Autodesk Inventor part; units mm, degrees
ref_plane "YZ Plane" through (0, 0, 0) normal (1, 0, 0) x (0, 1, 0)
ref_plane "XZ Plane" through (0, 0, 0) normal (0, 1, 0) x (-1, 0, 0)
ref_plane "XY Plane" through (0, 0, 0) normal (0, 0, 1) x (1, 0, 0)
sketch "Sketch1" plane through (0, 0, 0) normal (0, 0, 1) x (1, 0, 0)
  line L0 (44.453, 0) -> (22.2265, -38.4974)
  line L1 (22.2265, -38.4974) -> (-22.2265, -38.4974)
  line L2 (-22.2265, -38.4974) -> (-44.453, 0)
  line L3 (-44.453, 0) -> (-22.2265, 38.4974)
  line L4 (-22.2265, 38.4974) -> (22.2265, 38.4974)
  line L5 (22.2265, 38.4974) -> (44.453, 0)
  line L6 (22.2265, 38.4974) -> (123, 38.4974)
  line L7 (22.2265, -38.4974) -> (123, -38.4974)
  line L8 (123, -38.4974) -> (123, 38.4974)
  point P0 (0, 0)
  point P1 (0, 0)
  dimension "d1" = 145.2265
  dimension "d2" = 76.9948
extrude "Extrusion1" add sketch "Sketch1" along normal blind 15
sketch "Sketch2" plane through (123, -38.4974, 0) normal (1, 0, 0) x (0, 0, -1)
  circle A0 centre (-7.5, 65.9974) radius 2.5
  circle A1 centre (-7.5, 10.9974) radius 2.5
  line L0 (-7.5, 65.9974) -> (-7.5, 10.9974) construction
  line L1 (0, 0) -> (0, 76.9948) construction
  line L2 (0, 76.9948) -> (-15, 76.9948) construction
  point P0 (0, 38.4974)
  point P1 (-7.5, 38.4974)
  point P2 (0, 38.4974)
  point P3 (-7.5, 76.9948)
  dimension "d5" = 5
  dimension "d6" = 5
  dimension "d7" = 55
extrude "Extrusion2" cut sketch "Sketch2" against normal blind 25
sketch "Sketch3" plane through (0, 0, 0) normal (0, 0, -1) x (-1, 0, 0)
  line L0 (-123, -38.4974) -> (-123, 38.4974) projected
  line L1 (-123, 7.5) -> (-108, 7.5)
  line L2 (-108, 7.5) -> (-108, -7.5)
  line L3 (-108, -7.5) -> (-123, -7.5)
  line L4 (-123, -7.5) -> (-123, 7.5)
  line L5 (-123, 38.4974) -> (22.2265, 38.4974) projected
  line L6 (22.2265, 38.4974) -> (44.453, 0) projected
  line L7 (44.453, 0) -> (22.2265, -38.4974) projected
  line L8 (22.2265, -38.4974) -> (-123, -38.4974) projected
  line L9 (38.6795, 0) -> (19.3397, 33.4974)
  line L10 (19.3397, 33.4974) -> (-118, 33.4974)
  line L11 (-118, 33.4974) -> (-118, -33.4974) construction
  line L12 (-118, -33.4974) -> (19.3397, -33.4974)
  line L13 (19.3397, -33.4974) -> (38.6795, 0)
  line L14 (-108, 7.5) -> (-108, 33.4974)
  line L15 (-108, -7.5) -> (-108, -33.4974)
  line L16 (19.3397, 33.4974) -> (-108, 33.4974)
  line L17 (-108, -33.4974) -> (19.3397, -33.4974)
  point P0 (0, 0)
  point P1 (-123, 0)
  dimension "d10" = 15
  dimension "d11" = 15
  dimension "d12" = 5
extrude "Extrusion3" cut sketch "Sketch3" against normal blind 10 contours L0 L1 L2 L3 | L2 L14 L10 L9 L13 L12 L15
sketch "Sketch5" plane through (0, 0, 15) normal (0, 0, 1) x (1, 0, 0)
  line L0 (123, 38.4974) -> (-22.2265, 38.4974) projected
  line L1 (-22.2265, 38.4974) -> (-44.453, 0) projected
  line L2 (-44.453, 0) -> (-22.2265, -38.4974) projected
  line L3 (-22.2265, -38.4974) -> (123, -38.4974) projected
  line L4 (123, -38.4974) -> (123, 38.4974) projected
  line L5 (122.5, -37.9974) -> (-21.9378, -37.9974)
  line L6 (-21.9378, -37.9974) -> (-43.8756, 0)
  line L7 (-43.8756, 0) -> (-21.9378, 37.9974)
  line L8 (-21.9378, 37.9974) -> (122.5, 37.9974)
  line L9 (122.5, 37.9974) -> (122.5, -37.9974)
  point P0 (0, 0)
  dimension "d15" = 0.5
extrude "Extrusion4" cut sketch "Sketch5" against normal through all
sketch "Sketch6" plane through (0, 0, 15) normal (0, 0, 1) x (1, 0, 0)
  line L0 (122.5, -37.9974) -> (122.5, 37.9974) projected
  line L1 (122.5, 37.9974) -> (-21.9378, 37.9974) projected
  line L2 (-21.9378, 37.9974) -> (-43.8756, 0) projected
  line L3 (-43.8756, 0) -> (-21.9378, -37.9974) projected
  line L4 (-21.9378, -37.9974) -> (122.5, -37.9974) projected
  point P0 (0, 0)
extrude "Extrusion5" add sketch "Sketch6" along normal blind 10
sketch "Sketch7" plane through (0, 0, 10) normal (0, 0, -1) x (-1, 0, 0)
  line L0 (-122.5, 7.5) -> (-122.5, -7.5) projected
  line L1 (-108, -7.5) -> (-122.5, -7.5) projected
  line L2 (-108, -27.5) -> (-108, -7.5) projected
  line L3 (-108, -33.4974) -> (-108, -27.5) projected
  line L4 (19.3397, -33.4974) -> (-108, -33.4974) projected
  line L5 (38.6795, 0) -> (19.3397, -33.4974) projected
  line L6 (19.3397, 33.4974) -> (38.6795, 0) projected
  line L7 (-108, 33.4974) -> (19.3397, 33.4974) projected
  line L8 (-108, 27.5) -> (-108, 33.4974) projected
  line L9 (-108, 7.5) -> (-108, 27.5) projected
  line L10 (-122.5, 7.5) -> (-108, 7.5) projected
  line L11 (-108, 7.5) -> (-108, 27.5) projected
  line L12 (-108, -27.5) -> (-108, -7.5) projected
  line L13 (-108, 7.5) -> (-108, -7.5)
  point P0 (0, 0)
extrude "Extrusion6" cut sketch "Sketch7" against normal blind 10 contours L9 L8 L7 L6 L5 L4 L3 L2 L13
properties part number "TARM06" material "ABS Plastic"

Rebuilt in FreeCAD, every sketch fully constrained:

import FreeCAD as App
import Part
import Sketcher
Q = App.Units.Quantity

doc = App.newDocument("Part")
body = doc.addObject("PartDesign::Body", "Body")

sketch1 = body.newObject("Sketcher::SketchObject", "Sketch")
sketch1.AttachmentSupport = (doc.getObject("XY_Plane"), [""])
sketch1.MapMode = "FlatFace"
sketch1.addGeometry(Part.LineSegment(App.Vector(123, 38, 0), App.Vector(-22, 38, 0)), False)
sketch1.addGeometry(Part.LineSegment(App.Vector(-22, 38, 0), App.Vector(-44, 0, 0)), False)
sketch1.addGeometry(Part.LineSegment(App.Vector(-44, 0, 0), App.Vector(-22, -38, 0)), False)
sketch1.addGeometry(Part.LineSegment(App.Vector(-22, -38, 0), App.Vector(123, -38, 0)), False)
sketch1.addGeometry(Part.LineSegment(App.Vector(123, -38, 0), App.Vector(123, 38, 0)), False)
sketch1.addConstraint(Sketcher.Constraint("Coincident", 0, 2, 1, 1))
sketch1.addConstraint(Sketcher.Constraint("Coincident", 1, 2, 2, 1))
sketch1.addConstraint(Sketcher.Constraint("Coincident", 2, 2, 3, 1))
sketch1.addConstraint(Sketcher.Constraint("Coincident", 3, 2, 4, 1))
sketch1.addConstraint(Sketcher.Constraint("Coincident", 4, 2, 0, 1))
sketch1.addConstraint(Sketcher.Constraint("Horizontal", 0))
sketch1.addConstraint(Sketcher.Constraint("Horizontal", 3))
sketch1.addConstraint(Sketcher.Constraint("Vertical", 4))
sketch1.addConstraint(Sketcher.Constraint("Symmetric", 0, 2, 2, 2, -1))
sketch1.addConstraint(Sketcher.Constraint("PointOnObject", 1, 2, -1))
sketch1.addConstraint(Sketcher.Constraint("Angle", 1, Q("-120 deg")))
sketch1.addConstraint(Sketcher.Constraint("DistanceX", 0, 2, 0, 1, 145.2265))
sketch1.addConstraint(Sketcher.Constraint("DistanceY", 4, 1, 4, 2, 76.9948))
sketch1.addConstraint(Sketcher.Constraint("DistanceX", -1, 1, 3, 2, 123.0))
pad1 = body.newObject("PartDesign::Pad", "Pad")
pad1.Profile = sketch1
pad1.Length = 15

sketch2 = body.newObject("Sketcher::SketchObject", "Sketch001")
sketch2.AttachmentSupport = (doc.getObject("YZ_Plane"), [""])
sketch2.MapMode = "FlatFace"
sketch2.AttachmentOffset = App.Placement(App.Vector(0, 0, 123), App.Rotation())
sketch2.addGeometry(Part.Circle(App.Vector(27.5, 7.5, 0), App.Vector(0, 0, 1), 2.5), False)
sketch2.addGeometry(Part.Circle(App.Vector(-27.5, 7.5, 0), App.Vector(0, 0, 1), 2.5), False)
sketch2.addConstraint(Sketcher.Constraint("Equal", 0, 1))
sketch2.addConstraint(Sketcher.Constraint("Symmetric", 0, 3, 1, 3, -2))
sketch2.addConstraint(Sketcher.Constraint("Diameter", 0, 5.0))
sketch2.addConstraint(Sketcher.Constraint("DistanceX", 1, 3, 0, 3, 55.0))
sketch2.addConstraint(Sketcher.Constraint("DistanceY", -1, 1, 0, 3, 7.5))
pocket1 = body.newObject("PartDesign::Pocket", "Pocket")
pocket1.Profile = sketch2
pocket1.Length = 25

sketch3 = body.newObject("Sketcher::SketchObject", "Sketch002")
sketch3.AttachmentSupport = (doc.getObject("XY_Plane"), [""])
sketch3.MapMode = "FlatFace"
sketch3.addGeometry(Part.LineSegment(App.Vector(123, 8, 0), App.Vector(123, -8, 0)), False)
sketch3.addGeometry(Part.LineSegment(App.Vector(123, -8, 0), App.Vector(108, -8, 0)), False)
sketch3.addGeometry(Part.LineSegment(App.Vector(108, -8, 0), App.Vector(108, -33, 0)), False)
sketch3.addGeometry(Part.LineSegment(App.Vector(108, -33, 0), App.Vector(-19, -33, 0)), False)
sketch3.addGeometry(Part.LineSegment(App.Vector(-19, -33, 0), App.Vector(-39, 0, 0)), False)
sketch3.addGeometry(Part.LineSegment(App.Vector(-39, 0, 0), App.Vector(-19, 33, 0)), False)
sketch3.addGeometry(Part.LineSegment(App.Vector(-19, 33, 0), App.Vector(108, 33, 0)), False)
sketch3.addGeometry(Part.LineSegment(App.Vector(108, 33, 0), App.Vector(108, 8, 0)), False)
sketch3.addGeometry(Part.LineSegment(App.Vector(108, 8, 0), App.Vector(123, 8, 0)), False)
sketch3.addConstraint(Sketcher.Constraint("Coincident", 0, 2, 1, 1))
sketch3.addConstraint(Sketcher.Constraint("Coincident", 1, 2, 2, 1))
sketch3.addConstraint(Sketcher.Constraint("Coincident", 2, 2, 3, 1))
sketch3.addConstraint(Sketcher.Constraint("Coincident", 3, 2, 4, 1))
sketch3.addConstraint(Sketcher.Constraint("Coincident", 4, 2, 5, 1))
sketch3.addConstraint(Sketcher.Constraint("Coincident", 5, 2, 6, 1))
sketch3.addConstraint(Sketcher.Constraint("Coincident", 6, 2, 7, 1))
sketch3.addConstraint(Sketcher.Constraint("Coincident", 7, 2, 8, 1))
sketch3.addConstraint(Sketcher.Constraint("Coincident", 8, 2, 0, 1))
sketch3.addConstraint(Sketcher.Constraint("Vertical", 0))
sketch3.addConstraint(Sketcher.Constraint("Horizontal", 1))
sketch3.addConstraint(Sketcher.Constraint("Vertical", 2))
sketch3.addConstraint(Sketcher.Constraint("Horizontal", 3))
sketch3.addConstraint(Sketcher.Constraint("Horizontal", 6))
sketch3.addConstraint(Sketcher.Constraint("Vertical", 7))
sketch3.addConstraint(Sketcher.Constraint("Horizontal", 8))
sketch3.addConstraint(Sketcher.Constraint("Symmetric", 3, 2, 5, 2, -1))
sketch3.addConstraint(Sketcher.Constraint("Symmetric", 1, 2, 7, 2, -1))
sketch3.addConstraint(Sketcher.Constraint("PointOnObject", 4, 2, -1))
sketch3.addConstraint(Sketcher.Constraint("Equal", 8, 0))
sketch3.addConstraint(Sketcher.Constraint("DistanceX", 1, 2, 1, 1, 15.0))
sketch3.addConstraint(Sketcher.Constraint("Angle", 4, Q("120 deg")))
sketch3.addConstraint(Sketcher.Constraint("DistanceX", -1, 1, 0, 2, 123.0))
sketch3.addConstraint(Sketcher.Constraint("DistanceX", 3, 2, 3, 1, 127.3397))
sketch3.addConstraint(Sketcher.Constraint("DistanceY", 2, 2, 2, 1, 25.9974))
pocket2 = body.newObject("PartDesign::Pocket", "Pocket001")
pocket2.Profile = sketch3
pocket2.Length = 10
pocket2.Reversed = True

sketch4 = body.newObject("Sketcher::SketchObject", "Sketch003")
sketch4.AttachmentSupport = (doc.getObject("XY_Plane"), [""])
sketch4.MapMode = "FlatFace"
sketch4.AttachmentOffset = App.Placement(App.Vector(0, 0, 15), App.Rotation())
sketch4.addGeometry(Part.LineSegment(App.Vector(123, -38, 0), App.Vector(123, 38, 0)), False)
sketch4.addGeometry(Part.LineSegment(App.Vector(123, 38, 0), App.Vector(-22, 38, 0)), False)
sketch4.addGeometry(Part.LineSegment(App.Vector(-22, 38, 0), App.Vector(-44, 0, 0)), False)
sketch4.addGeometry(Part.LineSegment(App.Vector(-44, 0, 0), App.Vector(-22, -38, 0)), False)
sketch4.addGeometry(Part.LineSegment(App.Vector(-22, -38, 0), App.Vector(123, -38, 0)), False)
sketch4.addGeometry(Part.LineSegment(App.Vector(122, 38, 0), App.Vector(122, -38, 0)), False)
sketch4.addGeometry(Part.LineSegment(App.Vector(122, -38, 0), App.Vector(-22, -38, 0)), False)
sketch4.addGeometry(Part.LineSegment(App.Vector(-22, -38, 0), App.Vector(-44, 0, 0)), False)
sketch4.addGeometry(Part.LineSegment(App.Vector(-44, 0, 0), App.Vector(-22, 38, 0)), False)
sketch4.addGeometry(Part.LineSegment(App.Vector(-22, 38, 0), App.Vector(122, 38, 0)), False)
sketch4.addConstraint(Sketcher.Constraint("Coincident", 0, 2, 1, 1))
sketch4.addConstraint(Sketcher.Constraint("Coincident", 1, 2, 2, 1))
sketch4.addConstraint(Sketcher.Constraint("Coincident", 2, 2, 3, 1))
sketch4.addConstraint(Sketcher.Constraint("Coincident", 3, 2, 4, 1))
sketch4.addConstraint(Sketcher.Constraint("Coincident", 4, 2, 0, 1))
sketch4.addConstraint(Sketcher.Constraint("Coincident", 5, 2, 6, 1))
sketch4.addConstraint(Sketcher.Constraint("Coincident", 6, 2, 7, 1))
sketch4.addConstraint(Sketcher.Constraint("Coincident", 7, 2, 8, 1))
sketch4.addConstraint(Sketcher.Constraint("Coincident", 8, 2, 9, 1))
sketch4.addConstraint(Sketcher.Constraint("Coincident", 9, 2, 5, 1))
sketch4.addConstraint(Sketcher.Constraint("Vertical", 0))
sketch4.addConstraint(Sketcher.Constraint("Horizontal", 1))
sketch4.addConstraint(Sketcher.Constraint("Horizontal", 4))
sketch4.addConstraint(Sketcher.Constraint("Vertical", 5))
sketch4.addConstraint(Sketcher.Constraint("Horizontal", 6))
sketch4.addConstraint(Sketcher.Constraint("Horizontal", 9))
sketch4.addConstraint(Sketcher.Constraint("Symmetric", 1, 2, 3, 2, -1))
sketch4.addConstraint(Sketcher.Constraint("Symmetric", 6, 2, 8, 2, -1))
sketch4.addConstraint(Sketcher.Constraint("PointOnObject", 2, 2, -1))
sketch4.addConstraint(Sketcher.Constraint("PointOnObject", 7, 2, -1))
sketch4.addConstraint(Sketcher.Constraint("Parallel", 3, 7))
sketch4.addConstraint(Sketcher.Constraint("DistanceX", 5, 2, 4, 2, 0.5))
sketch4.addConstraint(Sketcher.Constraint("DistanceY", 4, 2, 5, 2, 0.5))
sketch4.addConstraint(Sketcher.Constraint("Angle", 2, Q("-120 deg")))
sketch4.addConstraint(Sketcher.Constraint("DistanceX", -1, 1, 0, 2, 123.0))
sketch4.addConstraint(Sketcher.Constraint("Distance", 2, 44.453))
sketch4.addConstraint(Sketcher.Constraint("DistanceX", 1, 2, 1, 1, 145.2265))
sketch4.addConstraint(Sketcher.Constraint("DistanceX", 6, 2, 6, 1, 144.4378))
pocket3 = body.newObject("PartDesign::Pocket", "Pocket002")
pocket3.Profile = sketch4
pocket3.Type = "ThroughAll"

sketch5 = body.newObject("Sketcher::SketchObject", "Sketch004")
sketch5.AttachmentSupport = (doc.getObject("XY_Plane"), [""])
sketch5.MapMode = "FlatFace"
sketch5.AttachmentOffset = App.Placement(App.Vector(0, 0, 15), App.Rotation())
sketch5.addGeometry(Part.LineSegment(App.Vector(-22, -38, 0), App.Vector(122, -38, 0)), False)
sketch5.addGeometry(Part.LineSegment(App.Vector(122, -38, 0), App.Vector(122, 38, 0)), False)
sketch5.addGeometry(Part.LineSegment(App.Vector(122, 38, 0), App.Vector(-22, 38, 0)), False)
sketch5.addGeometry(Part.LineSegment(App.Vector(-22, 38, 0), App.Vector(-44, 0, 0)), False)
sketch5.addGeometry(Part.LineSegment(App.Vector(-44, 0, 0), App.Vector(-22, -38, 0)), False)
sketch5.addConstraint(Sketcher.Constraint("Coincident", 0, 2, 1, 1))
sketch5.addConstraint(Sketcher.Constraint("Coincident", 1, 2, 2, 1))
sketch5.addConstraint(Sketcher.Constraint("Coincident", 2, 2, 3, 1))
sketch5.addConstraint(Sketcher.Constraint("Coincident", 3, 2, 4, 1))
sketch5.addConstraint(Sketcher.Constraint("Coincident", 4, 2, 0, 1))
sketch5.addConstraint(Sketcher.Constraint("Horizontal", 0))
sketch5.addConstraint(Sketcher.Constraint("Vertical", 1))
sketch5.addConstraint(Sketcher.Constraint("Horizontal", 2))
sketch5.addConstraint(Sketcher.Constraint("Symmetric", 2, 2, 4, 2, -1))
sketch5.addConstraint(Sketcher.Constraint("PointOnObject", 3, 2, -1))
sketch5.addConstraint(Sketcher.Constraint("Angle", 3, Q("-120 deg")))
sketch5.addConstraint(Sketcher.Constraint("DistanceX", -1, 1, 0, 2, 122.5))
sketch5.addConstraint(Sketcher.Constraint("DistanceX", 0, 1, 0, 2, 144.4378))
sketch5.addConstraint(Sketcher.Constraint("DistanceY", 1, 1, 1, 2, 75.9948))
pad2 = body.newObject("PartDesign::Pad", "Pad001")
pad2.Profile = sketch5
pad2.Length = 10

sketch6 = body.newObject("Sketcher::SketchObject", "Sketch005")
sketch6.AttachmentSupport = (doc.getObject("XY_Plane"), [""])
sketch6.MapMode = "FlatFace"
sketch6.AttachmentOffset = App.Placement(App.Vector(0, 0, 10), App.Rotation())
sketch6.addGeometry(Part.LineSegment(App.Vector(108, 33, 0), App.Vector(108, -33, 0)), False)
sketch6.addGeometry(Part.LineSegment(App.Vector(108, -33, 0), App.Vector(-19, -33, 0)), False)
sketch6.addGeometry(Part.LineSegment(App.Vector(-19, -33, 0), App.Vector(-39, 0, 0)), False)
sketch6.addGeometry(Part.LineSegment(App.Vector(-39, 0, 0), App.Vector(-19, 33, 0)), False)
sketch6.addGeometry(Part.LineSegment(App.Vector(-19, 33, 0), App.Vector(108, 33, 0)), False)
sketch6.addConstraint(Sketcher.Constraint("Coincident", 0, 2, 1, 1))
sketch6.addConstraint(Sketcher.Constraint("Coincident", 1, 2, 2, 1))
sketch6.addConstraint(Sketcher.Constraint("Coincident", 2, 2, 3, 1))
sketch6.addConstraint(Sketcher.Constraint("Coincident", 3, 2, 4, 1))
sketch6.addConstraint(Sketcher.Constraint("Coincident", 4, 2, 0, 1))
sketch6.addConstraint(Sketcher.Constraint("Vertical", 0))
sketch6.addConstraint(Sketcher.Constraint("Horizontal", 1))
sketch6.addConstraint(Sketcher.Constraint("Horizontal", 4))
sketch6.addConstraint(Sketcher.Constraint("Symmetric", 1, 2, 3, 2, -1))
sketch6.addConstraint(Sketcher.Constraint("PointOnObject", 2, 2, -1))
sketch6.addConstraint(Sketcher.Constraint("Angle", 2, Q("120 deg")))
sketch6.addConstraint(Sketcher.Constraint("DistanceX", -1, 1, 0, 2, 108.0))
sketch6.addConstraint(Sketcher.Constraint("DistanceX", 1, 2, 1, 1, 127.3397))
sketch6.addConstraint(Sketcher.Constraint("DistanceY", 0, 2, 0, 1, 66.9948))
pocket4 = body.newObject("PartDesign::Pocket", "Pocket003")
pocket4.Profile = sketch6
pocket4.Length = 10
pocket4.Reversed = True

doc.recompute()
